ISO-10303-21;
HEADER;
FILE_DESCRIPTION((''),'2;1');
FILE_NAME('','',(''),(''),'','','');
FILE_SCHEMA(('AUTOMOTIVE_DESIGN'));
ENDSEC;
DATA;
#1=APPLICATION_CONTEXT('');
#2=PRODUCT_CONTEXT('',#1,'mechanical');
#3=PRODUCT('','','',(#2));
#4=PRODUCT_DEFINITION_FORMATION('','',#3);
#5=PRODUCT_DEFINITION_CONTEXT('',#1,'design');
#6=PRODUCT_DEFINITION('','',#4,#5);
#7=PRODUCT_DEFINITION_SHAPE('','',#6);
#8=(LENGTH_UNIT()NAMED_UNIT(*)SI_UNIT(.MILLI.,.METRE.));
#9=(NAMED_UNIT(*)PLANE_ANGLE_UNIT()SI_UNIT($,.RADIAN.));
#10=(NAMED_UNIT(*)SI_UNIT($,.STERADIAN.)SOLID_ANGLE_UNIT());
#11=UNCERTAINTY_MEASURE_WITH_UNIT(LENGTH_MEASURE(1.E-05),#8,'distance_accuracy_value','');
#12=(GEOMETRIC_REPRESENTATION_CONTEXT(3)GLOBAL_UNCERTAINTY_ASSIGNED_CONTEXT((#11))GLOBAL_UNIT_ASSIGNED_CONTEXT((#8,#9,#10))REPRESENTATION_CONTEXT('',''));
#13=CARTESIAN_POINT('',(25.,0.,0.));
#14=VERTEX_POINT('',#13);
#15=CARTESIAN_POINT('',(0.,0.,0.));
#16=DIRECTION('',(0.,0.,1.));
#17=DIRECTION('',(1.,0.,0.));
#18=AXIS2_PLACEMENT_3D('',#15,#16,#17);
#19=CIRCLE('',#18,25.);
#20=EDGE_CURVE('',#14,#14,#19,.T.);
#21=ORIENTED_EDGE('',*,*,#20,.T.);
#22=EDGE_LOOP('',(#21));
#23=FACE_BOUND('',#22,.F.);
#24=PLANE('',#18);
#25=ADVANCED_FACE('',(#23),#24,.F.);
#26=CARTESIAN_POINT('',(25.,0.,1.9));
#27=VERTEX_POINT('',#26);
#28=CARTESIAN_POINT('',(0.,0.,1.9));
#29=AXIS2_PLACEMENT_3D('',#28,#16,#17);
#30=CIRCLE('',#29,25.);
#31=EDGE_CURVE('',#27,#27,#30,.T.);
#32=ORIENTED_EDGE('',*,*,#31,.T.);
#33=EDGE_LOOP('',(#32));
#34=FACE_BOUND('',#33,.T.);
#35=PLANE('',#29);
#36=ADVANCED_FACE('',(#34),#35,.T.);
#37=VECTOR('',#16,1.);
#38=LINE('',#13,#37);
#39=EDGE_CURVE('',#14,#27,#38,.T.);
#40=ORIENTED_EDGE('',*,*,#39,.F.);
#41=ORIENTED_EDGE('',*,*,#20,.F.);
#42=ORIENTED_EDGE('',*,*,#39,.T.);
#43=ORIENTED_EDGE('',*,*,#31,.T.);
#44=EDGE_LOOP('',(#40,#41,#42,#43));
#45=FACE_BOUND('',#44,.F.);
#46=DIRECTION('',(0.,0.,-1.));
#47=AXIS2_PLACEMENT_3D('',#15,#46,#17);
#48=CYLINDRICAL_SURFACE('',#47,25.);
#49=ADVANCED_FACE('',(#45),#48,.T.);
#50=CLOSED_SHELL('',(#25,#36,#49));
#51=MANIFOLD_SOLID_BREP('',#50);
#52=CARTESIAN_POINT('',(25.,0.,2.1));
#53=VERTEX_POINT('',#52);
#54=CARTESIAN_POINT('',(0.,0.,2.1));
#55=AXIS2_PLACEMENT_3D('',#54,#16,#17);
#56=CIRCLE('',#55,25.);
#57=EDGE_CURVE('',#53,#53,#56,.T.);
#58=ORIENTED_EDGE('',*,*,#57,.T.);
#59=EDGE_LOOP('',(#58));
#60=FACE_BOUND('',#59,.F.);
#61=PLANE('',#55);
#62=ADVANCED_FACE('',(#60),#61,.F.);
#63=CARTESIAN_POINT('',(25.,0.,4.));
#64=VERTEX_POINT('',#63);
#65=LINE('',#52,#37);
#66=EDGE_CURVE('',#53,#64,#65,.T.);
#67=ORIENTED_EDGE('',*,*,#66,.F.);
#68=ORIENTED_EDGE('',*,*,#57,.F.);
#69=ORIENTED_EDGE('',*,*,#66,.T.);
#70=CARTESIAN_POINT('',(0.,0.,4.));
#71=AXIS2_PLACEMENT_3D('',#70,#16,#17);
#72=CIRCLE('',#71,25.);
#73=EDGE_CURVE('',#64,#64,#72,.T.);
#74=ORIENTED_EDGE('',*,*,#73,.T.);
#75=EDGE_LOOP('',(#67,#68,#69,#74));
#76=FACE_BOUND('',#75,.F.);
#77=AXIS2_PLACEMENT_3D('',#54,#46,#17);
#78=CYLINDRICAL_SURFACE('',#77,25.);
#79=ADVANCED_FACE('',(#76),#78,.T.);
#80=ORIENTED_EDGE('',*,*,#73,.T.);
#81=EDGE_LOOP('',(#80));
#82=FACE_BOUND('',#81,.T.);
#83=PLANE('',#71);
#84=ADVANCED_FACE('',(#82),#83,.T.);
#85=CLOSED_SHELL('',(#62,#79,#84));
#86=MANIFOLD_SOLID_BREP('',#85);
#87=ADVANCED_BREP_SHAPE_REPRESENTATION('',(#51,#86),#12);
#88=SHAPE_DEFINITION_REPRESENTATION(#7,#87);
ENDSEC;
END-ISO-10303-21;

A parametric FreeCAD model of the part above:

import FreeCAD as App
import Part
import Sketcher
from FreeCAD import Vector

doc = App.newDocument("Part")
body = doc.addObject("PartDesign::Body", "Body")
body.AllowCompound = True

# Sketch on XY plane
sketch1 = doc.addObject("Sketcher::SketchObject", "Sketch")
body.addObject(sketch1)
sketch1.AttachmentSupport = (doc.XY_Plane, [""])
sketch1.MapMode = "FlatFace"
sketch1.addGeometry(Part.Circle(Vector(0, 0, 0), Vector(0, 0, 1), 25), False)
sketch1.addConstraint(Sketcher.Constraint("Coincident", 0, 3, -1, 1))
sketch1.addConstraint(Sketcher.Constraint("Diameter", 0, 50.0))
pad1 = doc.addObject("PartDesign::Pad", "Pad")
body.addObject(pad1)
pad1.Profile = sketch1
pad1.Length = 1.9
doc.recompute()

linearpattern = doc.addObject("PartDesign::LinearPattern", "LinearPattern")
body.addObject(linearpattern)
linearpattern.Originals = [pad1]
linearpattern.Direction = (doc.Z_Axis, [""])
linearpattern.Mode = "offset"
linearpattern.Offset = 2.1
linearpattern.Occurrences = 2
body.Tip = linearpattern

doc.recompute()
